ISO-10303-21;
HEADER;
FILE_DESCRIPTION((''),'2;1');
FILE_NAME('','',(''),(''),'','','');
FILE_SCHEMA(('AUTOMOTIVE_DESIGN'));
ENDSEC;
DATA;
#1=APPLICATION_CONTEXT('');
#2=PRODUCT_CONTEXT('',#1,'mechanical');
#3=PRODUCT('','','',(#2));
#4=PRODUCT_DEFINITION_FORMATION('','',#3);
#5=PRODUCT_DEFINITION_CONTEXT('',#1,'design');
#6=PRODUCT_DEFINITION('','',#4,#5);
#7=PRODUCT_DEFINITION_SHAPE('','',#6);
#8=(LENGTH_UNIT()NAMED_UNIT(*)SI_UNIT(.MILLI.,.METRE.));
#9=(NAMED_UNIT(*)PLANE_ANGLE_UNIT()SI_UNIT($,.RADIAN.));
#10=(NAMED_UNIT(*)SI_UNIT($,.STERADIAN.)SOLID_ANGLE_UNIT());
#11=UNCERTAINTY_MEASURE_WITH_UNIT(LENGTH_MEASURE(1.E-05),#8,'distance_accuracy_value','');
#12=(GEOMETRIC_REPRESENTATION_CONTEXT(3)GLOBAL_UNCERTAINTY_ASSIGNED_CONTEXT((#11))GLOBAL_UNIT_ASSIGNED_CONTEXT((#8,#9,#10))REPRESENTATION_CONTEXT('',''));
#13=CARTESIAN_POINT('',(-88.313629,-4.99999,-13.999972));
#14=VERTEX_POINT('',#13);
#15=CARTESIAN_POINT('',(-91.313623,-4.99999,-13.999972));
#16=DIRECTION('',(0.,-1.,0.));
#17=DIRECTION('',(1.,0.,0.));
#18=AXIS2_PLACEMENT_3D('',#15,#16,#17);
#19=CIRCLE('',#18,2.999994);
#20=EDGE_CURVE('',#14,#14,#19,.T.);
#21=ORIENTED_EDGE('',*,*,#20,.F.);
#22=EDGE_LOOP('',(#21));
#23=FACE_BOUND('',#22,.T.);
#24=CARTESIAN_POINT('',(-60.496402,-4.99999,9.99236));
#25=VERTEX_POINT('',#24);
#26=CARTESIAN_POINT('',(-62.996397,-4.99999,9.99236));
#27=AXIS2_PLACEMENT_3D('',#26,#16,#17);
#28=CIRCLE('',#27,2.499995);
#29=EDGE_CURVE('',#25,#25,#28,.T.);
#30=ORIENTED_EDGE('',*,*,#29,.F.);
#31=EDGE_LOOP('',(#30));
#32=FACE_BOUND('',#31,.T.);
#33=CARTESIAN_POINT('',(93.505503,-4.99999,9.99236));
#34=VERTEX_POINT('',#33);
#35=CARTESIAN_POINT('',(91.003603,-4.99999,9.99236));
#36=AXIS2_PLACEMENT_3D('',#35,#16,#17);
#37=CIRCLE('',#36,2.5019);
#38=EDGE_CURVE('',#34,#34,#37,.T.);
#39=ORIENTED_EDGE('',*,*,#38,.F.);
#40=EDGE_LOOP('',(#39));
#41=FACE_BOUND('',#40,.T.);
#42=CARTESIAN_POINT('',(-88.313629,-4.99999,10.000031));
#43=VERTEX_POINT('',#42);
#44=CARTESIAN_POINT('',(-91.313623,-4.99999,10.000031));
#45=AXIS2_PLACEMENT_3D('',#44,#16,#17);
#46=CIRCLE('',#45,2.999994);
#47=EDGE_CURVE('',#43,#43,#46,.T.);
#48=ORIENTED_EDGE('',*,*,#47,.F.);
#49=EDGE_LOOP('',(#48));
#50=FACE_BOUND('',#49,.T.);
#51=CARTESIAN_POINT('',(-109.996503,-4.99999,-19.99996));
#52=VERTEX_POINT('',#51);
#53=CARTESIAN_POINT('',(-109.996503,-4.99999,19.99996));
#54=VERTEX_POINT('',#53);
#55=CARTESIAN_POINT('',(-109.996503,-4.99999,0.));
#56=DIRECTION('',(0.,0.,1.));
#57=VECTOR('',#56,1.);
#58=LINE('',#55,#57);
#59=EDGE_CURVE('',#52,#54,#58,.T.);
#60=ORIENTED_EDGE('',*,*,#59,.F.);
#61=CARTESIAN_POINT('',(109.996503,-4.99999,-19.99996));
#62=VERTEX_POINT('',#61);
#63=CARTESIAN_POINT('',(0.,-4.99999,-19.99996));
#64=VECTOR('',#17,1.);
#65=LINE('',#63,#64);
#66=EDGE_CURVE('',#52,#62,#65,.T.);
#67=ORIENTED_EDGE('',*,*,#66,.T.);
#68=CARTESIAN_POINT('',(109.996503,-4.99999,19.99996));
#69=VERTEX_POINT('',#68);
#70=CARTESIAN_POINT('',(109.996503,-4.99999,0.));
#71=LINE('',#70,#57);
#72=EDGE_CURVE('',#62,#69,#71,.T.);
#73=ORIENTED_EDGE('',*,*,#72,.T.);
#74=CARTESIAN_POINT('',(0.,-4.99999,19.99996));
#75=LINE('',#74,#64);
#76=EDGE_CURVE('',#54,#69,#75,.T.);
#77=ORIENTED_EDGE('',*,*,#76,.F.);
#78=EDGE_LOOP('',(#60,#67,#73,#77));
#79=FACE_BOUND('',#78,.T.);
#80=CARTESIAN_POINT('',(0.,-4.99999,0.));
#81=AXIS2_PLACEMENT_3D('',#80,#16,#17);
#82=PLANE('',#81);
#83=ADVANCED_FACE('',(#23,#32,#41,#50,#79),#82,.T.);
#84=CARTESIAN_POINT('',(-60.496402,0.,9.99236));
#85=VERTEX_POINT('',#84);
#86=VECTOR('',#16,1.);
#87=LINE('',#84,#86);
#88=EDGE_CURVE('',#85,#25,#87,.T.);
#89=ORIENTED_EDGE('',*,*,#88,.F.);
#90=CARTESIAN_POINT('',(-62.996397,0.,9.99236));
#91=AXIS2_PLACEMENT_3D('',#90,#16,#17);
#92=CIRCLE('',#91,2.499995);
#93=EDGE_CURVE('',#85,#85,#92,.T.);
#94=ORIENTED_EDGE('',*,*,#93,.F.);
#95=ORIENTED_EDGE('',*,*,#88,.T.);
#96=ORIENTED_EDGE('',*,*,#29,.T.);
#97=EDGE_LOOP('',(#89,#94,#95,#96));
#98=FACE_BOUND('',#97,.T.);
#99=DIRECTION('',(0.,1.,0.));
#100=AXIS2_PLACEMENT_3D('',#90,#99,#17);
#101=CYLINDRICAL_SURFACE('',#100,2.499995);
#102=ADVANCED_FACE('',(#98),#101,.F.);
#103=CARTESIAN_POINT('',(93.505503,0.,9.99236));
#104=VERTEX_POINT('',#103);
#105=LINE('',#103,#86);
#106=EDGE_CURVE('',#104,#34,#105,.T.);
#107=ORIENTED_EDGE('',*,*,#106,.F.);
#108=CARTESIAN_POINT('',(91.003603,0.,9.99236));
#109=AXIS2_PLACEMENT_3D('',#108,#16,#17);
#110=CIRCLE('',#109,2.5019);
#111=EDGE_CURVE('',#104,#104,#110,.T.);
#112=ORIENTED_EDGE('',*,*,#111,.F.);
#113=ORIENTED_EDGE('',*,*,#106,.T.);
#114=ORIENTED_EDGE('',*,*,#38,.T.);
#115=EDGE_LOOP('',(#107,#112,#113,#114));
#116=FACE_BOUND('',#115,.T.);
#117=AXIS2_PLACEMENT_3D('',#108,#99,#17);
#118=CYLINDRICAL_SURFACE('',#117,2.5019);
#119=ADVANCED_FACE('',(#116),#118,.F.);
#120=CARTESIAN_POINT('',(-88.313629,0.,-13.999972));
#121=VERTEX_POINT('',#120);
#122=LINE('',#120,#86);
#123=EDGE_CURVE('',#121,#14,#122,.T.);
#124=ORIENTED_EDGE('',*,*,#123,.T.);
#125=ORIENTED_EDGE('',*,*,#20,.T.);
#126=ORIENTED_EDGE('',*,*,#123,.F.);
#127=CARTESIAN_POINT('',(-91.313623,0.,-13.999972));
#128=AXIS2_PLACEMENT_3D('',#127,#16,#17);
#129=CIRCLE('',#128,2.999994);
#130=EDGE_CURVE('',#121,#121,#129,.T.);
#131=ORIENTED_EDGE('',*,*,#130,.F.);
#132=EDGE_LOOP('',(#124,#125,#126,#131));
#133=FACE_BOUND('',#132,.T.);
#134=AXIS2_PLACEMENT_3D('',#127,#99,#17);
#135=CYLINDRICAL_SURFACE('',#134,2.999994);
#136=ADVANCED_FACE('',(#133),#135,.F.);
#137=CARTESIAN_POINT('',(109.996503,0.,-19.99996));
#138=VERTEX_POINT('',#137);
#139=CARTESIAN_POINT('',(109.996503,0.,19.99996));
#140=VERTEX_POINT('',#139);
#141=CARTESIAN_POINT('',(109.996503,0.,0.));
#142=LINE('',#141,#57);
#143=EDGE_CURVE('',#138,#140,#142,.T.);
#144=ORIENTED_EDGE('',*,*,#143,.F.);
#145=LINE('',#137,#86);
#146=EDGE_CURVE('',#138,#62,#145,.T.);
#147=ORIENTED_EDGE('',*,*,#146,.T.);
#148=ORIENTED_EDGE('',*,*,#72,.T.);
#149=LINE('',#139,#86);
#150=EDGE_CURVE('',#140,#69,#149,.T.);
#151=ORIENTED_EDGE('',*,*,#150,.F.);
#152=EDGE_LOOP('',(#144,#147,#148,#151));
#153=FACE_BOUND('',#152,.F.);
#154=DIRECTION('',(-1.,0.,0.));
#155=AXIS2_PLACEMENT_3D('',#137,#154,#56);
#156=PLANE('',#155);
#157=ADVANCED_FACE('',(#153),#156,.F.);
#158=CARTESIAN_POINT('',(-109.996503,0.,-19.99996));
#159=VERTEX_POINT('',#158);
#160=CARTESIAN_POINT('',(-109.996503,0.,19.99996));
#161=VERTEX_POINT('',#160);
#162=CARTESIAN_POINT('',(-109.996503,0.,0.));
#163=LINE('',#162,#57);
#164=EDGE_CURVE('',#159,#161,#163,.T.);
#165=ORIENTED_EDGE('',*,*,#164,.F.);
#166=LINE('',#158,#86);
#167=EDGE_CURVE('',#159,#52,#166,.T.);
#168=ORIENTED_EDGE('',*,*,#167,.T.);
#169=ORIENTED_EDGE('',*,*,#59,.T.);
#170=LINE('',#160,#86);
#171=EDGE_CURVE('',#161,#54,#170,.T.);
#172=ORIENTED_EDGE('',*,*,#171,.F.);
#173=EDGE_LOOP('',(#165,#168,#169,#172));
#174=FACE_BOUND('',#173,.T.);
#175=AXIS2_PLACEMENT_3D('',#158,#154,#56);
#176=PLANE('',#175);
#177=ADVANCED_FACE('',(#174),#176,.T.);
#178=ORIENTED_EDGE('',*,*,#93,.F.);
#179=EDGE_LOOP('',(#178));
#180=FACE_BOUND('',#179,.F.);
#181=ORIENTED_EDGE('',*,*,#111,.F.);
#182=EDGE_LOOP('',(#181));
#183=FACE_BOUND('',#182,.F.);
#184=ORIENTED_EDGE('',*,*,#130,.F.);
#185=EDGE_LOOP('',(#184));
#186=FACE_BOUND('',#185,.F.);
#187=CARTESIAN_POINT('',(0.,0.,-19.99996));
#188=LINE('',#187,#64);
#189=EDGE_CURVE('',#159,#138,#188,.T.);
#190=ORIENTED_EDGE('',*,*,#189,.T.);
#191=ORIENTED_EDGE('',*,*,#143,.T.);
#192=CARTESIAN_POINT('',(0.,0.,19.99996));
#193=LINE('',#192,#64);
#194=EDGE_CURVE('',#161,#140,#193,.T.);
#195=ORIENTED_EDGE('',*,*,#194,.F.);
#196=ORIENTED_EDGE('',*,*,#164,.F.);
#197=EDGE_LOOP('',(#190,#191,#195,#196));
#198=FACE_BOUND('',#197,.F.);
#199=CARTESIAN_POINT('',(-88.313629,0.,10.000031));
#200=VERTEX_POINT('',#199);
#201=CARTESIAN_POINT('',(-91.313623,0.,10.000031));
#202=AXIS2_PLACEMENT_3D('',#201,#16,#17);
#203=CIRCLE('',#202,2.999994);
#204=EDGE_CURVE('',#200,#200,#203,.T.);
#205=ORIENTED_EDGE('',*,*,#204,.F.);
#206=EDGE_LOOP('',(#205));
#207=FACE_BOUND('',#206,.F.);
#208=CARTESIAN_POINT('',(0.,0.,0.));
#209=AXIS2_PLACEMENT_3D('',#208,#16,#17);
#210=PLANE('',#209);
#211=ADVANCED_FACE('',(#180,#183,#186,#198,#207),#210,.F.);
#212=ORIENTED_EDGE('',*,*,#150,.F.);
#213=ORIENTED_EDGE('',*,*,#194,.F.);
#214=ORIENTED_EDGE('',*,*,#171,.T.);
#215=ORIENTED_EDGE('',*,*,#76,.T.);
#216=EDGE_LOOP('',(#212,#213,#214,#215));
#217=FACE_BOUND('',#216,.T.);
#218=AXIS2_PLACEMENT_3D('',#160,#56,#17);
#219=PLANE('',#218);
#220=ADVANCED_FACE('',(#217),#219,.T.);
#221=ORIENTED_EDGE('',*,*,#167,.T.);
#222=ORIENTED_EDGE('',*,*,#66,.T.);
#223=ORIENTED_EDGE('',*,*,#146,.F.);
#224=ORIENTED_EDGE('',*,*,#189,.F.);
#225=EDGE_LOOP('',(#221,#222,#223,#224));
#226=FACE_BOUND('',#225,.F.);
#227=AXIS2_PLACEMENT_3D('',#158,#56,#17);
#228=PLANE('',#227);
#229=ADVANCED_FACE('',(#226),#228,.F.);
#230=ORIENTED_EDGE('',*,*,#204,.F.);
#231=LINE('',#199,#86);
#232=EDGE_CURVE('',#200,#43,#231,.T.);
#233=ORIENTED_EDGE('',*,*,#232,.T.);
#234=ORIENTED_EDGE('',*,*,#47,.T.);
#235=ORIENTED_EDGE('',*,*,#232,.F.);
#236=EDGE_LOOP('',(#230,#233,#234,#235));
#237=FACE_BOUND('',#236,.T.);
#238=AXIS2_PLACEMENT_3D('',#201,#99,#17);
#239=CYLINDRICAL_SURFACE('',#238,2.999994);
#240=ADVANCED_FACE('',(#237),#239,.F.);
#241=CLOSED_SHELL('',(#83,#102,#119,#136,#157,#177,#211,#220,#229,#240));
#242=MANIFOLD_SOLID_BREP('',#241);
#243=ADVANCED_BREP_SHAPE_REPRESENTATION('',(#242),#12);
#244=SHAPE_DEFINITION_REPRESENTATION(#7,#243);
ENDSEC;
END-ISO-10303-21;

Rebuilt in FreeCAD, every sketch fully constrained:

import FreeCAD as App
import Part
import Sketcher

V = App.Vector
Q = App.Units.Quantity


def add_polygon(sketch, points):
    """Adds a closed chain of lines whose ends are joined by coincident constraints."""
    first, n = sketch.GeometryCount, len(points)
    for a, b in zip(points, points[1:] + points[:1]):
        sketch.addGeometry(Part.LineSegment(App.Vector(*a, 0), App.Vector(*b, 0)), False)
    for i in range(n):
        sketch.addConstraint(Sketcher.Constraint("Coincident", first + i, 2, first + (i + 1) % n, 1))

doc = App.newDocument("Part")
params = doc.addObject("Spreadsheet::Sheet", "Params")
for row, (alias, value) in enumerate([
    ("sketch1_diameter", "0.197 in"),
    ("pad1_length", "4.99999 mm"),
], start=1):
    params.set(f"A{row}", alias)
    params.set(f"B{row}", "=" + value)
    params.setAlias(f"B{row}", alias)

body = doc.addObject("PartDesign::Body", "Body")

# Sketch on XZ plane
sketch1 = body.newObject("Sketcher::SketchObject", "Sketch")
sketch1.AttachmentSupport = (doc.getObject("XZ_Plane"), [""])
sketch1.MapMode = "FlatFace"
add_polygon(sketch1, [(-110, 20), (-110, -20), (110, -20), (110, 20)])  # lines 0-3
sketch1.addGeometry(Part.Circle(V(-91.3, -14, 0), V(0, 0, 1), 3), False)  # 4
sketch1.addGeometry(Part.Circle(V(-91.3, 10, 0), V(0, 0, 1), 3), False)  # 5
sketch1.addGeometry(Part.Circle(V(-63, 10, 0), V(0, 0, 1), 2.5), False)  # 6
sketch1.addGeometry(Part.Circle(V(91, 10, 0), V(0, 0, 1), 2.5), False)  # 7
sketch1.addConstraint(Sketcher.Constraint("Vertical", 0))
sketch1.addConstraint(Sketcher.Constraint("Horizontal", 1))
sketch1.addConstraint(Sketcher.Constraint("Vertical", 2))
sketch1.addConstraint(Sketcher.Constraint("Horizontal", 3))
sketch1.addConstraint(Sketcher.Constraint("Equal", 4, 5))
sketch1.addConstraint(Sketcher.Constraint("Symmetric", 0, 2, 2, 2, -1, 1))
sketch1.addConstraint(Sketcher.Constraint("Horizontal", 6, 3, 7, 3))
sketch1.addConstraint(Sketcher.Constraint("Vertical", 4, 3, 5, 3))
sketch1.addConstraint(Sketcher.Constraint("Diameter", 7, Q("0.197 in")))
sketch1.addConstraint(Sketcher.Constraint("Diameter", 6, 4.99999))
sketch1.addConstraint(Sketcher.Constraint("DistanceY", 0, 2, 0, 1, Q("1.5748 in")))
sketch1.addConstraint(Sketcher.Constraint("DistanceY", 7, 3, 2, 2, Q("0.394 in")))
sketch1.addConstraint(Sketcher.Constraint("Diameter", 4, 5.999988))
sketch1.addConstraint(Sketcher.Constraint("DistanceX", 6, 3, 7, 3, 154.0))
sketch1.addConstraint(Sketcher.Constraint("DistanceX", 7, 3, 1, 2, 18.9929))
sketch1.addConstraint(Sketcher.Constraint("DistanceX", 1, 1, 1, 2, 219.993006))
sketch1.addConstraint(Sketcher.Constraint("DistanceY", -1, 1, 5, 3, 10.000031))
sketch1.addConstraint(Sketcher.Constraint("DistanceY", 4, 3, 6, 3, 23.992332))
sketch1.addConstraint(Sketcher.Constraint("DistanceX", 0, 2, 4, 3, 18.68288))
sketch1.setExpression("Constraints[12]", "Params.sketch1_diameter")
pad1 = body.newObject("PartDesign::Pad", "Pad")
pad1.Profile = sketch1
pad1.setExpression("Length", "Params.pad1_length")

doc.recompute()
